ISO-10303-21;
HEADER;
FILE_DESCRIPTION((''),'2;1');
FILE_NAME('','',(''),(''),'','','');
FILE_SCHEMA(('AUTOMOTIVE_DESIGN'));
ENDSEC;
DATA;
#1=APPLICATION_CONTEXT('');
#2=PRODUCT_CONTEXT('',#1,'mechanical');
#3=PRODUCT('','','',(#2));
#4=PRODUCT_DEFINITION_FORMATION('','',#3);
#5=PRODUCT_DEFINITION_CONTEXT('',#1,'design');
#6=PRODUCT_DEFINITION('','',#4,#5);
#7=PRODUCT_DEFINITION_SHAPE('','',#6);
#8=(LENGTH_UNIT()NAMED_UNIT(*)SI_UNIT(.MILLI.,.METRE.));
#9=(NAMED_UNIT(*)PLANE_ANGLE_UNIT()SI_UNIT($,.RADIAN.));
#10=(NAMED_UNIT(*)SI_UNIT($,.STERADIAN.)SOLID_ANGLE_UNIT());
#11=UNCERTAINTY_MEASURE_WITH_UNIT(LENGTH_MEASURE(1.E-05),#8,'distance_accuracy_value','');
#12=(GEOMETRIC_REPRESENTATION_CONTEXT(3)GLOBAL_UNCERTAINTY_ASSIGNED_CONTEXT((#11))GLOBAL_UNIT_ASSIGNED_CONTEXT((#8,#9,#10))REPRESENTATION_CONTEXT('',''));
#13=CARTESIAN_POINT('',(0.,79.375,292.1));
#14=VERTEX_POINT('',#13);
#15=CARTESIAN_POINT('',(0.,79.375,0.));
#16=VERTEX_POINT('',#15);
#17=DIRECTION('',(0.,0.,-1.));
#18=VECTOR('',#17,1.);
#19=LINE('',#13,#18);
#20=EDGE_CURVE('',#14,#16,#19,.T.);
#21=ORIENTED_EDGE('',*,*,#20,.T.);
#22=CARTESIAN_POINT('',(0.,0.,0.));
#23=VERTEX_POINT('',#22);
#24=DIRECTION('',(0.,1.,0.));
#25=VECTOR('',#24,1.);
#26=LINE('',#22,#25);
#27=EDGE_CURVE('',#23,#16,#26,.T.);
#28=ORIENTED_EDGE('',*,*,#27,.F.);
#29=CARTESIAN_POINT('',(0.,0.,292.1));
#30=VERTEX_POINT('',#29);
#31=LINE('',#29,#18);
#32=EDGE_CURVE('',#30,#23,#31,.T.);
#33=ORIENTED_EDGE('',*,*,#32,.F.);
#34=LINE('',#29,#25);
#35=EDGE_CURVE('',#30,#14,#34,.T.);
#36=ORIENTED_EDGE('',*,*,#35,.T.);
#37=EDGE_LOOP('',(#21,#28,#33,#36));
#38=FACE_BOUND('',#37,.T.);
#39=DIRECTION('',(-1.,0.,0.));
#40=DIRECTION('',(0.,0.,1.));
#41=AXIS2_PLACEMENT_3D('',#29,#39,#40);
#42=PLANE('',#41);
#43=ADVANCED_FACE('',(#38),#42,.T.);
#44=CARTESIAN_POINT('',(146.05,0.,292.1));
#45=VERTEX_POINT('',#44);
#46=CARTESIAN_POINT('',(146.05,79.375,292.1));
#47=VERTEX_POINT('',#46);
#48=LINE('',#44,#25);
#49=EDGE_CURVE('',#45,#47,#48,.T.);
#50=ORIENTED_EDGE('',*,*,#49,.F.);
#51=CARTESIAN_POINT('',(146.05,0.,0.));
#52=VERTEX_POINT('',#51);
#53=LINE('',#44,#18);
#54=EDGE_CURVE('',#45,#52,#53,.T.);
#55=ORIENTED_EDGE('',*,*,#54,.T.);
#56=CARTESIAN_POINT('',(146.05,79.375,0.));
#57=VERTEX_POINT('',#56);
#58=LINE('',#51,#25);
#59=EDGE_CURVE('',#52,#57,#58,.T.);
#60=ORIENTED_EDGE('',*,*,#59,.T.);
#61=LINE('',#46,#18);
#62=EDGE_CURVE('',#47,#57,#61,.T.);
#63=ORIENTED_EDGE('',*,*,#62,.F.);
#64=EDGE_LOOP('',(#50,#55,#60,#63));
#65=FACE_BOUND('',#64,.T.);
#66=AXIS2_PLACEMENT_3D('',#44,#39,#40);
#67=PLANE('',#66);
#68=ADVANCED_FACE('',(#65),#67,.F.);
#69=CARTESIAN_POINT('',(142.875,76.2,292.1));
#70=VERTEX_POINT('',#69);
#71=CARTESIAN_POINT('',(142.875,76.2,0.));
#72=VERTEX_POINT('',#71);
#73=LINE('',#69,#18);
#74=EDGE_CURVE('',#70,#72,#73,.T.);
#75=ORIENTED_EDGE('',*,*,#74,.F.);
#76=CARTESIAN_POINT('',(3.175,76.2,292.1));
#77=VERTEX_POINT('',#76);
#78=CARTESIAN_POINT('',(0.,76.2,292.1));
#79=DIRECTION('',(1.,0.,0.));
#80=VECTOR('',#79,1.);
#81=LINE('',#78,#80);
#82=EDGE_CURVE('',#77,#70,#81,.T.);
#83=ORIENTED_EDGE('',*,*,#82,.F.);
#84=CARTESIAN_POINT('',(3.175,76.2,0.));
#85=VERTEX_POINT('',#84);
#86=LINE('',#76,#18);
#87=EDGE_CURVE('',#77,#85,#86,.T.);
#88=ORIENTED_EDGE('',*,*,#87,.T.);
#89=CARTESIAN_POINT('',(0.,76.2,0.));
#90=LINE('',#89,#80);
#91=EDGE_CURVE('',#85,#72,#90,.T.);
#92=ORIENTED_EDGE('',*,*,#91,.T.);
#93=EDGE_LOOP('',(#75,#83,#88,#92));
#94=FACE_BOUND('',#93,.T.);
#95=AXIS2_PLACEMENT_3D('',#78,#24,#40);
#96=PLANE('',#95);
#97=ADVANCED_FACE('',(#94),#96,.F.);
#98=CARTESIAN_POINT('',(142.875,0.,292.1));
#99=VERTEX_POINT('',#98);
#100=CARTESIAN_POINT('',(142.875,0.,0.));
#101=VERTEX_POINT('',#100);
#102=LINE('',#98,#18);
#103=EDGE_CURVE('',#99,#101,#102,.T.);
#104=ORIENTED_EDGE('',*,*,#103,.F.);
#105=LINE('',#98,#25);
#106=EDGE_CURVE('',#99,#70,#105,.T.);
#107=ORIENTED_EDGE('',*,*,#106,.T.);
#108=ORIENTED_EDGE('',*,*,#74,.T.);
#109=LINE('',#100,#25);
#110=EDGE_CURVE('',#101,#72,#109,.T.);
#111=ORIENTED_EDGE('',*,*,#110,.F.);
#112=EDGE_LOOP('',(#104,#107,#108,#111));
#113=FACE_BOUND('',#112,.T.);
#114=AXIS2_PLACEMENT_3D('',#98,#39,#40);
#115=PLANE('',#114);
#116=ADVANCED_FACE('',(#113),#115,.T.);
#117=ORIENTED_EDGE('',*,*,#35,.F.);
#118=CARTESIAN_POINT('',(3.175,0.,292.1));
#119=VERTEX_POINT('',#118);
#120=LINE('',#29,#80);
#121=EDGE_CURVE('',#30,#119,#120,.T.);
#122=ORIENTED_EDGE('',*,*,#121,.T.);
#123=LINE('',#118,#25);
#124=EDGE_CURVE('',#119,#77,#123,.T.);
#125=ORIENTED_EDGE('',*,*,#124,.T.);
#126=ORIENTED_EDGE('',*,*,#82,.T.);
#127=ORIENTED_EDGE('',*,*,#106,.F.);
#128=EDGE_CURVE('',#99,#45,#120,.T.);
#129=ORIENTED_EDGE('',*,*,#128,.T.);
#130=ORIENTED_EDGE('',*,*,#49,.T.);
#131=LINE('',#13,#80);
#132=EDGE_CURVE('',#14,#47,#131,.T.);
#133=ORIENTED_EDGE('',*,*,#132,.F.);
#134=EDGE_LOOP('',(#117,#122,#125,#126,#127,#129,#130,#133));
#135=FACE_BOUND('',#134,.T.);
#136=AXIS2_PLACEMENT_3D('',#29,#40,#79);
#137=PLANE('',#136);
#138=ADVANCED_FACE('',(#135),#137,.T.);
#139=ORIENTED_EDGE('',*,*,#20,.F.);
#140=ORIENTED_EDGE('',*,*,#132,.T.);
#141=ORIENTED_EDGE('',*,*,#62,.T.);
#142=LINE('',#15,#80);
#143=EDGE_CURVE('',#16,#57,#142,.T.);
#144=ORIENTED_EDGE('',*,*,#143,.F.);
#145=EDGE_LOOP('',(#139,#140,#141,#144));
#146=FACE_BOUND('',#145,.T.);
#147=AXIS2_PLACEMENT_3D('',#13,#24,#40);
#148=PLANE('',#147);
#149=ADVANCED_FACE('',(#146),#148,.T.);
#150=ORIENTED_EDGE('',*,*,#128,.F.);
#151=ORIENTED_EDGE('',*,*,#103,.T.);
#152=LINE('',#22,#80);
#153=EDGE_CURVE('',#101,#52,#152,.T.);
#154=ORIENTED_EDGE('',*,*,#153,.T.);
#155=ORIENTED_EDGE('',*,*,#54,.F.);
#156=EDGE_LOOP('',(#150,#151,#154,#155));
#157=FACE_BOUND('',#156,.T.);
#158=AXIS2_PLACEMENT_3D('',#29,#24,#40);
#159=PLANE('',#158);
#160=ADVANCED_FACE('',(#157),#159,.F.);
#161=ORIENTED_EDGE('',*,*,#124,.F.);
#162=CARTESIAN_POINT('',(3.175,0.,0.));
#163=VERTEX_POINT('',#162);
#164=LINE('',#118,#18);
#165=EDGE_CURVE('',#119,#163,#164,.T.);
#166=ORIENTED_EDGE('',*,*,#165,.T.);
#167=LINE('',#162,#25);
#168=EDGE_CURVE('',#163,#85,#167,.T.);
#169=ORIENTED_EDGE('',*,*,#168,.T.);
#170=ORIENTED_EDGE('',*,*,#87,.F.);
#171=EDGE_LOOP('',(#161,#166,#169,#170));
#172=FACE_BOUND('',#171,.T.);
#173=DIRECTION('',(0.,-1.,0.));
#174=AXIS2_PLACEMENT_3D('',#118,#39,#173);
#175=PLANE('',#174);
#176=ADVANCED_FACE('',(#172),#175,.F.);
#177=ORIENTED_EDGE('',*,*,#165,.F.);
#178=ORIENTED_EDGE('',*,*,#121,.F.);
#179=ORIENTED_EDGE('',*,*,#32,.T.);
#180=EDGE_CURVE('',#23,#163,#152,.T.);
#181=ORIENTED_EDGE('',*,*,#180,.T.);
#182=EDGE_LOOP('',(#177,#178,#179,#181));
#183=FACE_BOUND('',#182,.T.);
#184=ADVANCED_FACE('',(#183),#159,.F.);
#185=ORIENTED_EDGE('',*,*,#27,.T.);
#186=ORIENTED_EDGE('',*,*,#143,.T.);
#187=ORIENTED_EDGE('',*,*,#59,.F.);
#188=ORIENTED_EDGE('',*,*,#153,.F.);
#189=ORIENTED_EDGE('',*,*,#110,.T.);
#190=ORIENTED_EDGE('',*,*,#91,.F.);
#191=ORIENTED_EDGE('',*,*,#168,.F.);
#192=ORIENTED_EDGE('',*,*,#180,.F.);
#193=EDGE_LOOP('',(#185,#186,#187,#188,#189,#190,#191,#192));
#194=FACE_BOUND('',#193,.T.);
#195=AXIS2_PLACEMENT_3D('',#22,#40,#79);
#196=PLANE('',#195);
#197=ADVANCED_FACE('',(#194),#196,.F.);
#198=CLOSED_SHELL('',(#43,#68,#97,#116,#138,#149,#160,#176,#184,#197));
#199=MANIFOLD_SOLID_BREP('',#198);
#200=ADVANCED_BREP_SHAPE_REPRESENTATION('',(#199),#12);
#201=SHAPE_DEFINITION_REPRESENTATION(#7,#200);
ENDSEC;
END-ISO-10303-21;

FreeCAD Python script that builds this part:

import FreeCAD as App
import Part
import Sketcher

V = App.Vector
Q = App.Units.Quantity

doc = App.newDocument("Part")
body = doc.addObject("PartDesign::Body", "Body")

sketch1 = doc.addObject("Sketcher::SketchObject", "Sketch")
body.addObject(sketch1)
sketch1.AttachmentSupport = (doc.XY_Plane, [""])
sketch1.MapMode = "FlatFace"
sketch1.addGeometry([
    Part.LineSegment(V(0, 79.4, 0), V(0, 0, 0)),
    Part.LineSegment(V(0, 0, 0), V(3.2, 0, 0)),
    Part.LineSegment(V(3.2, 0, 0), V(3.2, 76.2, 0)),
    Part.LineSegment(V(3.2, 76.2, 0), V(142.9, 76.2, 0)),
    Part.LineSegment(V(142.9, 76.2, 0), V(142.9, 0, 0)),
    Part.LineSegment(V(142.9, 0, 0), V(146.1, 0, 0)),
    Part.LineSegment(V(146.1, 0, 0), V(146.1, 79.4, 0)),
    Part.LineSegment(V(146.1, 79.4, 0), V(0, 79.4, 0)),
], False)
sketch1.addConstraint([
    Sketcher.Constraint("Coincident", 0, 2, 1, 1),
    Sketcher.Constraint("Coincident", 1, 2, 2, 1),
    Sketcher.Constraint("Coincident", 2, 2, 3, 1),
    Sketcher.Constraint("Coincident", 3, 2, 4, 1),
    Sketcher.Constraint("Coincident", 4, 2, 5, 1),
    Sketcher.Constraint("Coincident", 5, 2, 6, 1),
    Sketcher.Constraint("Coincident", 6, 2, 7, 1),
    Sketcher.Constraint("Coincident", 7, 2, 0, 1),
    Sketcher.Constraint("Vertical", 0),
    Sketcher.Constraint("Horizontal", 1),
    Sketcher.Constraint("Vertical", 2),
    Sketcher.Constraint("Horizontal", 3),
    Sketcher.Constraint("Vertical", 4),
    Sketcher.Constraint("Horizontal", 5),
    Sketcher.Constraint("Vertical", 6),
    Sketcher.Constraint("Horizontal", 7),
    Sketcher.Constraint("Coincident", 0, 2, -1, 1),
    Sketcher.Constraint("PointOnObject", 4, 2, -1),
    Sketcher.Constraint("Equal", 1, 5),
    Sketcher.Constraint("DistanceY", 2, 1, 2, 2, Q("3 in")),
    Sketcher.Constraint("DistanceX", 3, 1, 3, 2, Q("5.5 in")),
    Sketcher.Constraint("DistanceX", 7, 2, 7, 1, Q("5.75 in")),
    Sketcher.Constraint("DistanceY", 0, 2, 0, 1, Q("3.125 in")),
])
pad1 = doc.addObject("PartDesign::Pad", "Pad")
body.addObject(pad1)
pad1.Profile = sketch1
pad1.Length = Q("11.5 in")

doc.recompute()
